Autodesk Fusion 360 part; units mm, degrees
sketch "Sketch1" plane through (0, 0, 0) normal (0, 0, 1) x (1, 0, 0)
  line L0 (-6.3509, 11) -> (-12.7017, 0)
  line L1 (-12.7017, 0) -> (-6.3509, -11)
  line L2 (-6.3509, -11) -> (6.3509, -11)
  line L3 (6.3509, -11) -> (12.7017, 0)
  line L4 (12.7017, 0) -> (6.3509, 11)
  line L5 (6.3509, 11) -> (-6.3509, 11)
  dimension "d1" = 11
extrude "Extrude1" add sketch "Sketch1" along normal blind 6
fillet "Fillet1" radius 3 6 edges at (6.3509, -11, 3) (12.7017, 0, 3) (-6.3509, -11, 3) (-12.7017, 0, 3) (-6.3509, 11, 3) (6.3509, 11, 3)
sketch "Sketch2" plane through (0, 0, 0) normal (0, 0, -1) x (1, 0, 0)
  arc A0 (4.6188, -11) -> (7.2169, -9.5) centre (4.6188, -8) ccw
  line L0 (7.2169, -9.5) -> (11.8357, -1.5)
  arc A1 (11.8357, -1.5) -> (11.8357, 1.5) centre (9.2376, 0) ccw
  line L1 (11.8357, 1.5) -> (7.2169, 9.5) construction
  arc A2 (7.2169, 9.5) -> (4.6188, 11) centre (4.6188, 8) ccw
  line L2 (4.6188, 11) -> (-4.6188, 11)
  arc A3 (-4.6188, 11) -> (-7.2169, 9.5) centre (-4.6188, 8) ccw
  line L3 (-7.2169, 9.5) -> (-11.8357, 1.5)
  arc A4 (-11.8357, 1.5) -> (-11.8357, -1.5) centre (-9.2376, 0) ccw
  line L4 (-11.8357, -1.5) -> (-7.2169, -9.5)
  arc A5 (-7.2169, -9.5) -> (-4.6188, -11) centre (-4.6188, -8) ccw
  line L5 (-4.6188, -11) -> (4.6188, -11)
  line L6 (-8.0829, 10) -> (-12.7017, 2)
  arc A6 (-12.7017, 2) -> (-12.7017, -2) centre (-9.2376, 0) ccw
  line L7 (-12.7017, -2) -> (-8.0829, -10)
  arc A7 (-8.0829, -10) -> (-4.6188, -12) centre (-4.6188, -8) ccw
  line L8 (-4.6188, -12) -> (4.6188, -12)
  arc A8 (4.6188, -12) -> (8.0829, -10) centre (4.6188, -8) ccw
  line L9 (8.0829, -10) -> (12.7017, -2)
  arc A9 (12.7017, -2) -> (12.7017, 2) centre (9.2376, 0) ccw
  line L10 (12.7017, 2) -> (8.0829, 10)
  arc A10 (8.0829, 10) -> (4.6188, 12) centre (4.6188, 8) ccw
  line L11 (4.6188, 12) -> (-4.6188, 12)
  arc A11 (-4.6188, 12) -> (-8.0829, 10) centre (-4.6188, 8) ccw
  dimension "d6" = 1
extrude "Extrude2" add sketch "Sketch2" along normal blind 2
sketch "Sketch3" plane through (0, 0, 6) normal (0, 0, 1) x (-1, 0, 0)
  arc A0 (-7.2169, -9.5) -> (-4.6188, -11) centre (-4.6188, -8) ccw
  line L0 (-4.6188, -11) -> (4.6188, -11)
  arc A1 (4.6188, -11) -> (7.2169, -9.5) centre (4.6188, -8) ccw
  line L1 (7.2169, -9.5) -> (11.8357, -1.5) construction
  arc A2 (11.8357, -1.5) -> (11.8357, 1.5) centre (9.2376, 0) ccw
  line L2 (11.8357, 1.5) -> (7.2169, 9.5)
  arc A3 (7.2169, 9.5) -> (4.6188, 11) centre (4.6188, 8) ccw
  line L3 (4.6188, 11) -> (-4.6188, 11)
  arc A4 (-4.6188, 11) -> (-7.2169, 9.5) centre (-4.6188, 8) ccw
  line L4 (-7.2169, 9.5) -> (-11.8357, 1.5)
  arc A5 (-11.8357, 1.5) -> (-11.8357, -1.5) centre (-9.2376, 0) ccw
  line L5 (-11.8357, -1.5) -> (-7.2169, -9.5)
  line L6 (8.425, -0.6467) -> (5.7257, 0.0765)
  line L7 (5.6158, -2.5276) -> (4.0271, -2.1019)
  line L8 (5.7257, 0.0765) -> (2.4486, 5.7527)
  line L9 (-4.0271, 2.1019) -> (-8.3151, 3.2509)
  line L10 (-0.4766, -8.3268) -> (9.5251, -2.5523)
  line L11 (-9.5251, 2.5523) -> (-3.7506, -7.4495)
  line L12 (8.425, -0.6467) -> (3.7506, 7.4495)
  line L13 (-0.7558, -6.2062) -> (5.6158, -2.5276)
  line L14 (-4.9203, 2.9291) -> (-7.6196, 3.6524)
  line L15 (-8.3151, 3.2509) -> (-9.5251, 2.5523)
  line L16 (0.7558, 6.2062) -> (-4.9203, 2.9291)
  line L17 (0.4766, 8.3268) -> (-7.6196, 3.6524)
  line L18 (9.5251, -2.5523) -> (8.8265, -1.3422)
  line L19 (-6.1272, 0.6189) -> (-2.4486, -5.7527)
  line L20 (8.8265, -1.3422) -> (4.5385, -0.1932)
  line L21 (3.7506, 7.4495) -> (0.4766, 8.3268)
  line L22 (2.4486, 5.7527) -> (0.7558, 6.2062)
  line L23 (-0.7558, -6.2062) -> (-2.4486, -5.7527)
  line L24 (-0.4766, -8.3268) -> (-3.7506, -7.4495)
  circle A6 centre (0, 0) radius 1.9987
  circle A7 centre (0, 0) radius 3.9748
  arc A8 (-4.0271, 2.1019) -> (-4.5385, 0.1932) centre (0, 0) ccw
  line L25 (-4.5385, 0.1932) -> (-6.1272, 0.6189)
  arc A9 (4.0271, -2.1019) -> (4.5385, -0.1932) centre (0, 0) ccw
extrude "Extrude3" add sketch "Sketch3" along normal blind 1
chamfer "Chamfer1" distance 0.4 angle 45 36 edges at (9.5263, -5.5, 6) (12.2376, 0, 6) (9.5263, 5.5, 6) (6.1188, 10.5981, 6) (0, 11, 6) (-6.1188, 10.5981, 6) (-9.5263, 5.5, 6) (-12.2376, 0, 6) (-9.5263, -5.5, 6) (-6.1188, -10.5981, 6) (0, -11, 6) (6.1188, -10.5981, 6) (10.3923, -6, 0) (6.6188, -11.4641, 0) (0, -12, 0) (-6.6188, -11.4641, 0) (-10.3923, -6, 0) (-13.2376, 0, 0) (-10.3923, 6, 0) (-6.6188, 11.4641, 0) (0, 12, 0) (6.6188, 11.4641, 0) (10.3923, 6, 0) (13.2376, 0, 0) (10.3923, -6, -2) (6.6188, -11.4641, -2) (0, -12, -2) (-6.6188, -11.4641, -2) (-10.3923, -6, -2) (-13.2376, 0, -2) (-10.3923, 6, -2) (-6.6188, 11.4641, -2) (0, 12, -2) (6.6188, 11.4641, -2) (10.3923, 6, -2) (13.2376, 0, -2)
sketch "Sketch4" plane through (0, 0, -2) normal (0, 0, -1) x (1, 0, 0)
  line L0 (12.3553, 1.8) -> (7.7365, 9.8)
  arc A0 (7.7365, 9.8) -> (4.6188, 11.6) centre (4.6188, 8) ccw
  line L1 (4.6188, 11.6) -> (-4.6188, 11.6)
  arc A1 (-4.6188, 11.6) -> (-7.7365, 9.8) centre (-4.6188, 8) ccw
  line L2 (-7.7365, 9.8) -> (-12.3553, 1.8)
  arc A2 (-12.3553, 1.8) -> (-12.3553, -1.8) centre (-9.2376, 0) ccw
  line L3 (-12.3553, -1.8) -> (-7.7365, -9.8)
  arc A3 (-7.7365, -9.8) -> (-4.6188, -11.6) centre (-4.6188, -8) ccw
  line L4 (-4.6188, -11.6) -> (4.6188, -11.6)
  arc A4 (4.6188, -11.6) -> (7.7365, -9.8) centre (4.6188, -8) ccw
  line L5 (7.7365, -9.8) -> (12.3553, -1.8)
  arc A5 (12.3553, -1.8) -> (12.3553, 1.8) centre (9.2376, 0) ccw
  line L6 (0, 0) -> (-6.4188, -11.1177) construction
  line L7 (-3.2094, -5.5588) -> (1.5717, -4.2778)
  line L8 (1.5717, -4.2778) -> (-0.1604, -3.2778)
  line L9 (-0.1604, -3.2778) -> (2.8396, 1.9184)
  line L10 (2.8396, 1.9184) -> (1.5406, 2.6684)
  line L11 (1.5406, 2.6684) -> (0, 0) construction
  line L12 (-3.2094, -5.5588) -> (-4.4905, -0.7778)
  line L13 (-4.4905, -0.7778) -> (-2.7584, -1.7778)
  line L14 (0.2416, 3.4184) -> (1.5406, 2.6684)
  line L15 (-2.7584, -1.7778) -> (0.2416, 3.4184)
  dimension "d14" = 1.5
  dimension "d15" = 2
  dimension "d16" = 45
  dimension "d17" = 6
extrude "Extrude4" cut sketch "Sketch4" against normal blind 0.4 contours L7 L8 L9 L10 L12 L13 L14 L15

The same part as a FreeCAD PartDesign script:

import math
import FreeCAD as App
import Part
import Sketcher

V = App.Vector
Q = App.Units.Quantity


def edges_at(feature, points):
    """Names of the edges that pass closest to the given points."""
    edges = feature.Shape.Edges
    near = lambda p: min(range(len(edges)), key=lambda i: edges[i].distToShape(Part.Vertex(*p))[0])
    return sorted({f"Edge{near(p) + 1}" for p in points})


def add_polygon(sketch, points):
    """Adds a closed chain of lines whose ends are joined by coincident constraints."""
    first, n = sketch.GeometryCount, len(points)
    for a, b in zip(points, points[1:] + points[:1]):
        sketch.addGeometry(Part.LineSegment(App.Vector(*a, 0), App.Vector(*b, 0)), False)
    for i in range(n):
        sketch.addConstraint(Sketcher.Constraint("Coincident", first + i, 2, first + (i + 1) % n, 1))

doc = App.newDocument("Part")
body = doc.addObject("PartDesign::Body", "Body")

sketch1 = body.newObject("Sketcher::SketchObject", "Sketch")
sketch1.AttachmentSupport = (doc.getObject("XY_Plane"), [""])
sketch1.MapMode = "FlatFace"
add_polygon(sketch1, [(6.3509, 11), (-6.3509, 11), (-12.7017, 0), (-6.3509, -11), (6.3509, -11), (12.7017, 0)])
sketch1.addConstraint([
    Sketcher.Constraint("Horizontal", 0),
    Sketcher.Constraint("Horizontal", 3),
    Sketcher.Constraint("Symmetric", 0, 2, 3, 2, -1, 1),
    Sketcher.Constraint("Symmetric", 1, 2, 4, 2, -1, 1),
    Sketcher.Constraint("PointOnObject", 1, 2, -1),
    Sketcher.Constraint("Parallel", 2, 5),
    Sketcher.Constraint("Vertical", 0, 2, 2, 2),
    Sketcher.Constraint("DistanceY", -1, 1, 0, 2, 11.0),
    Sketcher.Constraint("Angle", 1, Q("-119.9998 deg")),
    Sketcher.Constraint("DistanceX", 0, 2, 0, 1, 12.7018),
])
pad1 = body.newObject("PartDesign::Pad", "Pad")
pad1.Profile = sketch1
pad1.Length = 6
doc.recompute()

fillet = body.newObject("PartDesign::Fillet", "Fillet")
fillet.Base = (pad1, edges_at(pad1, [
    (6.351, -11, 3),
    (12.702, 0, 3),
    (-6.351, -11, 3),
    (-12.702, 0, 3),
    (-6.351, 11, 3),
    (6.351, 11, 3),
]))
fillet.Radius = 3

sketch2 = body.newObject("Sketcher::SketchObject", "Sketch001")
sketch2.AttachmentSupport = (doc.getObject("XY_Plane"), [""])
sketch2.MapMode = "FlatFace"
sketch2.addGeometry([
    Part.ArcOfCircle(Part.Circle(V(-4.6188, -8, 0), V(0, 0, 1), 4), math.radians(-149.999988), math.radians(-90)),
    Part.LineSegment(V(-8.0829, -10, 0), V(-12.7017, -2, 0)),
    Part.ArcOfCircle(Part.Circle(V(-9.2376, 0, 0), V(0, 0, 1), 3.999999), math.radians(149.999988), math.radians(210.000012)),
    Part.LineSegment(V(-12.7017, 2, 0), V(-8.0829, 10, 0)),
    Part.ArcOfCircle(Part.Circle(V(-4.6188, 8, 0), V(0, 0, 1), 3.999999), math.radians(90), math.radians(149.999988)),
    Part.LineSegment(V(-4.6188, 12, 0), V(4.6188, 12, 0)),
    Part.ArcOfCircle(Part.Circle(V(4.6188, 8, 0), V(0, 0, 1), 4), math.radians(30.000012), math.radians(90)),
    Part.LineSegment(V(8.0829, 10, 0), V(12.7017, 2, 0)),
    Part.ArcOfCircle(Part.Circle(V(9.2376, 0, 0), V(0, 0, 1), 3.999999), math.radians(-30.000012), math.radians(30.000012)),
    Part.LineSegment(V(12.7017, -2, 0), V(8.0829, -10, 0)),
    Part.ArcOfCircle(Part.Circle(V(4.6188, -8, 0), V(0, 0, 1), 3.999999), math.radians(-90), math.radians(-30.000012)),
    Part.LineSegment(V(4.6188, -12, 0), V(-4.6188, -12, 0)),
], False)
sketch2.addConstraint([
    Sketcher.Constraint("Tangent", 0, 1, 1, 1),
    Sketcher.Constraint("Tangent", 1, 2, 2, 2),
    Sketcher.Constraint("Tangent", 2, 1, 3, 1),
    Sketcher.Constraint("Tangent", 3, 2, 4, 2),
    Sketcher.Constraint("Tangent", 4, 1, 5, 1),
    Sketcher.Constraint("Tangent", 5, 2, 6, 2),
    Sketcher.Constraint("Tangent", 6, 1, 7, 1),
    Sketcher.Constraint("Tangent", 7, 2, 8, 2),
    Sketcher.Constraint("Tangent", 8, 1, 9, 1),
    Sketcher.Constraint("Tangent", 9, 2, 10, 2),
    Sketcher.Constraint("Tangent", 10, 1, 11, 1),
    Sketcher.Constraint("Tangent", 11, 2, 0, 2),
    Sketcher.Constraint("Horizontal", 5),
    Sketcher.Constraint("Horizontal", 11),
    Sketcher.Constraint("Equal", 0, 2),
    Sketcher.Constraint("Equal", 2, 4),
    Sketcher.Constraint("Equal", 4, 6),
    Sketcher.Constraint("Equal", 6, 8),
    Sketcher.Constraint("Equal", 8, 10),
    Sketcher.Constraint("Symmetric", 0, 3, 6, 3, -1, 1),
    Sketcher.Constraint("Symmetric", 2, 3, 8, 3, -1, 1),
    Sketcher.Constraint("Symmetric", 3, 2, 6, 1, -2),
    Sketcher.Constraint("Parallel", 3, 9),
    Sketcher.Constraint("Radius", 0, 4.0),
    Sketcher.Constraint("Angle", 1, Q("120 deg")),
    Sketcher.Constraint("DistanceY", 0, 3, -1, 1, 8.0),
    Sketcher.Constraint("DistanceX", 5, 1, 5, 2, 9.2376),
])
pad2 = body.newObject("PartDesign::Pad", "Pad001")
pad2.Profile = sketch2
pad2.Length = 2
pad2.Reversed = True

sketch3 = body.newObject("Sketcher::SketchObject", "Sketch002")
sketch3.AttachmentSupport = (doc.getObject("XY_Plane"), [""])
sketch3.MapMode = "FlatFace"
sketch3.AttachmentOffset = App.Placement(V(0, 0, 6), App.Rotation())
add_polygon(sketch3, [(-5.7257, -0.0765), (-8.425, 0.6467), (-3.7506, -7.4495), (-0.4766, -8.3268), (7.6196, -3.6524), (4.9203, -2.9291), (-0.7558, -6.2062), (-2.4486, -5.7527)])
sketch3.addGeometry(Part.LineSegment(V(-4.0271, 2.1019, 0), V(-5.6158, 2.5276, 0)), False)
sketch3.addGeometry(Part.LineSegment(V(-5.6158, 2.5276, 0), V(0.7558, 6.2062, 0)), False)
sketch3.addGeometry(Part.LineSegment(V(0.7558, 6.2062, 0), V(2.4486, 5.7527, 0)), False)
sketch3.addGeometry(Part.LineSegment(V(2.4486, 5.7527, 0), V(6.1272, -0.6189, 0)), False)
sketch3.addGeometry(Part.LineSegment(V(6.1272, -0.6189, 0), V(4.5385, -0.1932, 0)), False)
sketch3.addGeometry(Part.ArcOfCircle(Part.Circle(V(0, 0, 0), V(0, 0, 1), 4.542633), math.radians(-27.561806), math.radians(-2.43756)), False)
sketch3.addGeometry(Part.LineSegment(V(4.0271, -2.1019, 0), V(8.3151, -3.2509, 0)), False)
sketch3.addGeometry(Part.LineSegment(V(8.3151, -3.2509, 0), V(9.5251, -2.5523, 0)), False)
sketch3.addGeometry(Part.LineSegment(V(9.5251, -2.5523, 0), V(3.7506, 7.4495, 0)), False)
sketch3.addGeometry(Part.LineSegment(V(3.7506, 7.4495, 0), V(0.4766, 8.3268, 0)), False)
sketch3.addGeometry(Part.LineSegment(V(0.4766, 8.3268, 0), V(-9.5251, 2.5523, 0)), False)
sketch3.addGeometry(Part.LineSegment(V(-9.5251, 2.5523, 0), V(-8.8265, 1.3422, 0)), False)
sketch3.addGeometry(Part.LineSegment(V(-8.8265, 1.3422, 0), V(-4.5385, 0.1932, 0)), False)
sketch3.addGeometry(Part.ArcOfCircle(Part.Circle(V(0, 0, 0), V(0, 0, 1), 4.542633), math.radians(152.438194), math.radians(177.56244)), False)
sketch3.addGeometry(Part.Circle(V(0, 0, 0), V(0, 0, 1), 3.9748), False)
sketch3.addGeometry(Part.Circle(V(0, 0, 0), V(0, 0, 1), 1.9987), False)
sketch3.addConstraint([
    Sketcher.Constraint("Coincident", 8, 2, 9, 1),
    Sketcher.Constraint("Coincident", 9, 2, 10, 1),
    Sketcher.Constraint("Coincident", 10, 2, 11, 1),
    Sketcher.Constraint("Coincident", 11, 2, 12, 1),
    Sketcher.Constraint("Coincident", 12, 2, 13, 2),
    Sketcher.Constraint("Coincident", 13, 1, 14, 1),
    Sketcher.Constraint("Coincident", 14, 2, 15, 1),
    Sketcher.Constraint("Coincident", 15, 2, 16, 1),
    Sketcher.Constraint("Coincident", 16, 2, 17, 1),
    Sketcher.Constraint("Coincident", 17, 2, 18, 1),
    Sketcher.Constraint("Coincident", 18, 2, 19, 1),
    Sketcher.Constraint("Coincident", 19, 2, 20, 1),
    Sketcher.Constraint("Coincident", 20, 2, 21, 2),
    Sketcher.Constraint("Coincident", 21, 1, 8, 1),
    Sketcher.Constraint("Coincident", 13, 3, -1, 1),
    Sketcher.Constraint("Coincident", 21, 3, -1, 1),
    Sketcher.Constraint("Coincident", 22, 3, -1, 1),
    Sketcher.Constraint("Coincident", 23, 3, -1, 1),
    Sketcher.Constraint("Equal", 13, 21),
    Sketcher.Constraint("Symmetric", 5, 2, 9, 2, -1, 1),
    Sketcher.Constraint("Symmetric", 6, 2, 10, 2, -1, 1),
    Sketcher.Constraint("Symmetric", 1, 2, 16, 2, -1, 1),
    Sketcher.Constraint("Symmetric", 2, 2, 17, 2, -1, 1),
    Sketcher.Constraint("Symmetric", 15, 2, 18, 2, -1, 1),
    Sketcher.Constraint("Parallel", 0, 2),
    Sketcher.Constraint("Perpendicular", 1, 3),
    Sketcher.Constraint("Parallel", 2, 4),
    Sketcher.Constraint("Parallel", 3, 5),
    Sketcher.Constraint("Parallel", 4, 6),
    Sketcher.Constraint("Perpendicular", 5, 7),
    Sketcher.Constraint("Parallel", 6, 8),
    Sketcher.Constraint("Perpendicular", 7, 9),
    Sketcher.Constraint("Perpendicular", 9, 11),
    Sketcher.Constraint("Parallel", 10, 12),
    Sketcher.Constraint("Parallel", 12, 14),
    Sketcher.Constraint("Perpendicular", 11, 15),
    Sketcher.Constraint("Perpendicular", 15, 16),
    Sketcher.Constraint("Perpendicular", 16, 18),
    Sketcher.Constraint("Perpendicular", 18, 19),
    Sketcher.Constraint("Parallel", 17, 20),
    Sketcher.Constraint("Equal", 1, 3),
    Sketcher.Constraint("Equal", 0, 4),
    Sketcher.Constraint("Equal", 5, 7),
    Sketcher.Constraint("Equal", 9, 11),
    Sketcher.Constraint("Equal", 8, 12),
    Sketcher.Constraint("Equal", 15, 19),
    Sketcher.Constraint("Angle", 1, Q("-59.9997 deg")),
    Sketcher.Constraint("Diameter", 22, 7.9496),
    Sketcher.Constraint("Diameter", 23, 3.9974),
    Sketcher.Constraint("Radius", 13, 4.5426),
    Sketcher.Constraint("DistanceX", 13, 1, 11, 2, 2.1),
    Sketcher.Constraint("DistanceY", 3, 2, 15, 2, 1.1),
    Sketcher.Constraint("DistanceX", 7, 2, 8, 2, 0.11),
    Sketcher.Constraint("DistanceX", 14, 2, 15, 2, 1.21),
    Sketcher.Constraint("Distance", 16, 11.549),
    Sketcher.Constraint("DistanceX", 0, 2, -1, 1, 8.425),
    Sketcher.Constraint("DistanceX", 1, 2, 6, 2, 1.302),
])
pad3 = body.newObject("PartDesign::Pad", "Pad002")
pad3.Profile = sketch3
pad3.Length = 1
doc.recompute()

chamfer = body.newObject("PartDesign::Chamfer", "Chamfer")
chamfer.Base = (pad3, edges_at(pad3, [
    (9.526, -5.5, 6),
    (12.238, 0, 6),
    (9.526, 5.5, 6),
    (6.119, 10.598, 6),
    (0, 11, 6),
    (-6.119, 10.598, 6),
    (-9.526, 5.5, 6),
    (-12.238, 0, 6),
    (-9.526, -5.5, 6),
    (-6.119, -10.598, 6),
    (0, -11, 6),
    (6.119, -10.598, 6),
    (10.392, -6, 0),
    (6.619, -11.464, 0),
    (0, -12, 0),
    (-6.619, -11.464, 0),
    (-10.392, -6, 0),
    (-13.238, 0, 0),
    (-10.392, 6, 0),
    (-6.619, 11.464, 0),
    (0, 12, 0),
    (6.619, 11.464, 0),
    (10.392, 6, 0),
    (13.238, 0, 0),
    (10.392, -6, -2),
    (6.619, -11.464, -2),
    (0, -12, -2),
    (-6.619, -11.464, -2),
    (-10.392, -6, -2),
    (-13.238, 0, -2),
    (-10.392, 6, -2),
    (-6.619, 11.464, -2),
    (0, 12, -2),
    (6.619, 11.464, -2),
    (10.392, 6, -2),
    (13.238, 0, -2),
]))
chamfer.Size = 0.4

sketch4 = body.newObject("Sketcher::SketchObject", "Sketch003")
sketch4.AttachmentSupport = (doc.getObject("XY_Plane"), [""])
sketch4.MapMode = "FlatFace"
sketch4.AttachmentOffset = App.Placement(V(0, 0, -2), App.Rotation())
add_polygon(sketch4, [(-4.4905, 0.7778), (-3.2094, 5.5588), (1.5717, 4.2778), (-0.1604, 3.2778), (2.8396, -1.9184), (0.2416, -3.4184), (-2.7584, 1.7778)])
sketch4.addConstraint([
    Sketcher.Constraint("Perpendicular", 0, 1),
    Sketcher.Constraint("Perpendicular", 2, 3),
    Sketcher.Constraint("Perpendicular", 3, 4),
    Sketcher.Constraint("Perpendicular", 4, 5),
    Sketcher.Constraint("Perpendicular", 5, 6),
    Sketcher.Constraint("Equal", 0, 1),
    Sketcher.Constraint("Equal", 3, 5),
    Sketcher.Constraint("Equal", 2, 6),
    Sketcher.Constraint("Distance", 2, 2.0),
    Sketcher.Constraint("Distance", 3, 6.0),
    Sketcher.Constraint("DistanceY", 4, 2, 3, 2, 1.5),
    Sketcher.Constraint("Angle", 0, Q("74.9996 deg")),
    Sketcher.Constraint("DistanceX", 0, 2, -1, 1, 3.2094),
    Sketcher.Constraint("DistanceY", -1, 1, 0, 2, 5.5588),
])
pocket1 = body.newObject("PartDesign::Pocket", "Pocket")
pocket1.Profile = sketch4
pocket1.Length = 0.4
pocket1.Reversed = True

doc.recompute()
